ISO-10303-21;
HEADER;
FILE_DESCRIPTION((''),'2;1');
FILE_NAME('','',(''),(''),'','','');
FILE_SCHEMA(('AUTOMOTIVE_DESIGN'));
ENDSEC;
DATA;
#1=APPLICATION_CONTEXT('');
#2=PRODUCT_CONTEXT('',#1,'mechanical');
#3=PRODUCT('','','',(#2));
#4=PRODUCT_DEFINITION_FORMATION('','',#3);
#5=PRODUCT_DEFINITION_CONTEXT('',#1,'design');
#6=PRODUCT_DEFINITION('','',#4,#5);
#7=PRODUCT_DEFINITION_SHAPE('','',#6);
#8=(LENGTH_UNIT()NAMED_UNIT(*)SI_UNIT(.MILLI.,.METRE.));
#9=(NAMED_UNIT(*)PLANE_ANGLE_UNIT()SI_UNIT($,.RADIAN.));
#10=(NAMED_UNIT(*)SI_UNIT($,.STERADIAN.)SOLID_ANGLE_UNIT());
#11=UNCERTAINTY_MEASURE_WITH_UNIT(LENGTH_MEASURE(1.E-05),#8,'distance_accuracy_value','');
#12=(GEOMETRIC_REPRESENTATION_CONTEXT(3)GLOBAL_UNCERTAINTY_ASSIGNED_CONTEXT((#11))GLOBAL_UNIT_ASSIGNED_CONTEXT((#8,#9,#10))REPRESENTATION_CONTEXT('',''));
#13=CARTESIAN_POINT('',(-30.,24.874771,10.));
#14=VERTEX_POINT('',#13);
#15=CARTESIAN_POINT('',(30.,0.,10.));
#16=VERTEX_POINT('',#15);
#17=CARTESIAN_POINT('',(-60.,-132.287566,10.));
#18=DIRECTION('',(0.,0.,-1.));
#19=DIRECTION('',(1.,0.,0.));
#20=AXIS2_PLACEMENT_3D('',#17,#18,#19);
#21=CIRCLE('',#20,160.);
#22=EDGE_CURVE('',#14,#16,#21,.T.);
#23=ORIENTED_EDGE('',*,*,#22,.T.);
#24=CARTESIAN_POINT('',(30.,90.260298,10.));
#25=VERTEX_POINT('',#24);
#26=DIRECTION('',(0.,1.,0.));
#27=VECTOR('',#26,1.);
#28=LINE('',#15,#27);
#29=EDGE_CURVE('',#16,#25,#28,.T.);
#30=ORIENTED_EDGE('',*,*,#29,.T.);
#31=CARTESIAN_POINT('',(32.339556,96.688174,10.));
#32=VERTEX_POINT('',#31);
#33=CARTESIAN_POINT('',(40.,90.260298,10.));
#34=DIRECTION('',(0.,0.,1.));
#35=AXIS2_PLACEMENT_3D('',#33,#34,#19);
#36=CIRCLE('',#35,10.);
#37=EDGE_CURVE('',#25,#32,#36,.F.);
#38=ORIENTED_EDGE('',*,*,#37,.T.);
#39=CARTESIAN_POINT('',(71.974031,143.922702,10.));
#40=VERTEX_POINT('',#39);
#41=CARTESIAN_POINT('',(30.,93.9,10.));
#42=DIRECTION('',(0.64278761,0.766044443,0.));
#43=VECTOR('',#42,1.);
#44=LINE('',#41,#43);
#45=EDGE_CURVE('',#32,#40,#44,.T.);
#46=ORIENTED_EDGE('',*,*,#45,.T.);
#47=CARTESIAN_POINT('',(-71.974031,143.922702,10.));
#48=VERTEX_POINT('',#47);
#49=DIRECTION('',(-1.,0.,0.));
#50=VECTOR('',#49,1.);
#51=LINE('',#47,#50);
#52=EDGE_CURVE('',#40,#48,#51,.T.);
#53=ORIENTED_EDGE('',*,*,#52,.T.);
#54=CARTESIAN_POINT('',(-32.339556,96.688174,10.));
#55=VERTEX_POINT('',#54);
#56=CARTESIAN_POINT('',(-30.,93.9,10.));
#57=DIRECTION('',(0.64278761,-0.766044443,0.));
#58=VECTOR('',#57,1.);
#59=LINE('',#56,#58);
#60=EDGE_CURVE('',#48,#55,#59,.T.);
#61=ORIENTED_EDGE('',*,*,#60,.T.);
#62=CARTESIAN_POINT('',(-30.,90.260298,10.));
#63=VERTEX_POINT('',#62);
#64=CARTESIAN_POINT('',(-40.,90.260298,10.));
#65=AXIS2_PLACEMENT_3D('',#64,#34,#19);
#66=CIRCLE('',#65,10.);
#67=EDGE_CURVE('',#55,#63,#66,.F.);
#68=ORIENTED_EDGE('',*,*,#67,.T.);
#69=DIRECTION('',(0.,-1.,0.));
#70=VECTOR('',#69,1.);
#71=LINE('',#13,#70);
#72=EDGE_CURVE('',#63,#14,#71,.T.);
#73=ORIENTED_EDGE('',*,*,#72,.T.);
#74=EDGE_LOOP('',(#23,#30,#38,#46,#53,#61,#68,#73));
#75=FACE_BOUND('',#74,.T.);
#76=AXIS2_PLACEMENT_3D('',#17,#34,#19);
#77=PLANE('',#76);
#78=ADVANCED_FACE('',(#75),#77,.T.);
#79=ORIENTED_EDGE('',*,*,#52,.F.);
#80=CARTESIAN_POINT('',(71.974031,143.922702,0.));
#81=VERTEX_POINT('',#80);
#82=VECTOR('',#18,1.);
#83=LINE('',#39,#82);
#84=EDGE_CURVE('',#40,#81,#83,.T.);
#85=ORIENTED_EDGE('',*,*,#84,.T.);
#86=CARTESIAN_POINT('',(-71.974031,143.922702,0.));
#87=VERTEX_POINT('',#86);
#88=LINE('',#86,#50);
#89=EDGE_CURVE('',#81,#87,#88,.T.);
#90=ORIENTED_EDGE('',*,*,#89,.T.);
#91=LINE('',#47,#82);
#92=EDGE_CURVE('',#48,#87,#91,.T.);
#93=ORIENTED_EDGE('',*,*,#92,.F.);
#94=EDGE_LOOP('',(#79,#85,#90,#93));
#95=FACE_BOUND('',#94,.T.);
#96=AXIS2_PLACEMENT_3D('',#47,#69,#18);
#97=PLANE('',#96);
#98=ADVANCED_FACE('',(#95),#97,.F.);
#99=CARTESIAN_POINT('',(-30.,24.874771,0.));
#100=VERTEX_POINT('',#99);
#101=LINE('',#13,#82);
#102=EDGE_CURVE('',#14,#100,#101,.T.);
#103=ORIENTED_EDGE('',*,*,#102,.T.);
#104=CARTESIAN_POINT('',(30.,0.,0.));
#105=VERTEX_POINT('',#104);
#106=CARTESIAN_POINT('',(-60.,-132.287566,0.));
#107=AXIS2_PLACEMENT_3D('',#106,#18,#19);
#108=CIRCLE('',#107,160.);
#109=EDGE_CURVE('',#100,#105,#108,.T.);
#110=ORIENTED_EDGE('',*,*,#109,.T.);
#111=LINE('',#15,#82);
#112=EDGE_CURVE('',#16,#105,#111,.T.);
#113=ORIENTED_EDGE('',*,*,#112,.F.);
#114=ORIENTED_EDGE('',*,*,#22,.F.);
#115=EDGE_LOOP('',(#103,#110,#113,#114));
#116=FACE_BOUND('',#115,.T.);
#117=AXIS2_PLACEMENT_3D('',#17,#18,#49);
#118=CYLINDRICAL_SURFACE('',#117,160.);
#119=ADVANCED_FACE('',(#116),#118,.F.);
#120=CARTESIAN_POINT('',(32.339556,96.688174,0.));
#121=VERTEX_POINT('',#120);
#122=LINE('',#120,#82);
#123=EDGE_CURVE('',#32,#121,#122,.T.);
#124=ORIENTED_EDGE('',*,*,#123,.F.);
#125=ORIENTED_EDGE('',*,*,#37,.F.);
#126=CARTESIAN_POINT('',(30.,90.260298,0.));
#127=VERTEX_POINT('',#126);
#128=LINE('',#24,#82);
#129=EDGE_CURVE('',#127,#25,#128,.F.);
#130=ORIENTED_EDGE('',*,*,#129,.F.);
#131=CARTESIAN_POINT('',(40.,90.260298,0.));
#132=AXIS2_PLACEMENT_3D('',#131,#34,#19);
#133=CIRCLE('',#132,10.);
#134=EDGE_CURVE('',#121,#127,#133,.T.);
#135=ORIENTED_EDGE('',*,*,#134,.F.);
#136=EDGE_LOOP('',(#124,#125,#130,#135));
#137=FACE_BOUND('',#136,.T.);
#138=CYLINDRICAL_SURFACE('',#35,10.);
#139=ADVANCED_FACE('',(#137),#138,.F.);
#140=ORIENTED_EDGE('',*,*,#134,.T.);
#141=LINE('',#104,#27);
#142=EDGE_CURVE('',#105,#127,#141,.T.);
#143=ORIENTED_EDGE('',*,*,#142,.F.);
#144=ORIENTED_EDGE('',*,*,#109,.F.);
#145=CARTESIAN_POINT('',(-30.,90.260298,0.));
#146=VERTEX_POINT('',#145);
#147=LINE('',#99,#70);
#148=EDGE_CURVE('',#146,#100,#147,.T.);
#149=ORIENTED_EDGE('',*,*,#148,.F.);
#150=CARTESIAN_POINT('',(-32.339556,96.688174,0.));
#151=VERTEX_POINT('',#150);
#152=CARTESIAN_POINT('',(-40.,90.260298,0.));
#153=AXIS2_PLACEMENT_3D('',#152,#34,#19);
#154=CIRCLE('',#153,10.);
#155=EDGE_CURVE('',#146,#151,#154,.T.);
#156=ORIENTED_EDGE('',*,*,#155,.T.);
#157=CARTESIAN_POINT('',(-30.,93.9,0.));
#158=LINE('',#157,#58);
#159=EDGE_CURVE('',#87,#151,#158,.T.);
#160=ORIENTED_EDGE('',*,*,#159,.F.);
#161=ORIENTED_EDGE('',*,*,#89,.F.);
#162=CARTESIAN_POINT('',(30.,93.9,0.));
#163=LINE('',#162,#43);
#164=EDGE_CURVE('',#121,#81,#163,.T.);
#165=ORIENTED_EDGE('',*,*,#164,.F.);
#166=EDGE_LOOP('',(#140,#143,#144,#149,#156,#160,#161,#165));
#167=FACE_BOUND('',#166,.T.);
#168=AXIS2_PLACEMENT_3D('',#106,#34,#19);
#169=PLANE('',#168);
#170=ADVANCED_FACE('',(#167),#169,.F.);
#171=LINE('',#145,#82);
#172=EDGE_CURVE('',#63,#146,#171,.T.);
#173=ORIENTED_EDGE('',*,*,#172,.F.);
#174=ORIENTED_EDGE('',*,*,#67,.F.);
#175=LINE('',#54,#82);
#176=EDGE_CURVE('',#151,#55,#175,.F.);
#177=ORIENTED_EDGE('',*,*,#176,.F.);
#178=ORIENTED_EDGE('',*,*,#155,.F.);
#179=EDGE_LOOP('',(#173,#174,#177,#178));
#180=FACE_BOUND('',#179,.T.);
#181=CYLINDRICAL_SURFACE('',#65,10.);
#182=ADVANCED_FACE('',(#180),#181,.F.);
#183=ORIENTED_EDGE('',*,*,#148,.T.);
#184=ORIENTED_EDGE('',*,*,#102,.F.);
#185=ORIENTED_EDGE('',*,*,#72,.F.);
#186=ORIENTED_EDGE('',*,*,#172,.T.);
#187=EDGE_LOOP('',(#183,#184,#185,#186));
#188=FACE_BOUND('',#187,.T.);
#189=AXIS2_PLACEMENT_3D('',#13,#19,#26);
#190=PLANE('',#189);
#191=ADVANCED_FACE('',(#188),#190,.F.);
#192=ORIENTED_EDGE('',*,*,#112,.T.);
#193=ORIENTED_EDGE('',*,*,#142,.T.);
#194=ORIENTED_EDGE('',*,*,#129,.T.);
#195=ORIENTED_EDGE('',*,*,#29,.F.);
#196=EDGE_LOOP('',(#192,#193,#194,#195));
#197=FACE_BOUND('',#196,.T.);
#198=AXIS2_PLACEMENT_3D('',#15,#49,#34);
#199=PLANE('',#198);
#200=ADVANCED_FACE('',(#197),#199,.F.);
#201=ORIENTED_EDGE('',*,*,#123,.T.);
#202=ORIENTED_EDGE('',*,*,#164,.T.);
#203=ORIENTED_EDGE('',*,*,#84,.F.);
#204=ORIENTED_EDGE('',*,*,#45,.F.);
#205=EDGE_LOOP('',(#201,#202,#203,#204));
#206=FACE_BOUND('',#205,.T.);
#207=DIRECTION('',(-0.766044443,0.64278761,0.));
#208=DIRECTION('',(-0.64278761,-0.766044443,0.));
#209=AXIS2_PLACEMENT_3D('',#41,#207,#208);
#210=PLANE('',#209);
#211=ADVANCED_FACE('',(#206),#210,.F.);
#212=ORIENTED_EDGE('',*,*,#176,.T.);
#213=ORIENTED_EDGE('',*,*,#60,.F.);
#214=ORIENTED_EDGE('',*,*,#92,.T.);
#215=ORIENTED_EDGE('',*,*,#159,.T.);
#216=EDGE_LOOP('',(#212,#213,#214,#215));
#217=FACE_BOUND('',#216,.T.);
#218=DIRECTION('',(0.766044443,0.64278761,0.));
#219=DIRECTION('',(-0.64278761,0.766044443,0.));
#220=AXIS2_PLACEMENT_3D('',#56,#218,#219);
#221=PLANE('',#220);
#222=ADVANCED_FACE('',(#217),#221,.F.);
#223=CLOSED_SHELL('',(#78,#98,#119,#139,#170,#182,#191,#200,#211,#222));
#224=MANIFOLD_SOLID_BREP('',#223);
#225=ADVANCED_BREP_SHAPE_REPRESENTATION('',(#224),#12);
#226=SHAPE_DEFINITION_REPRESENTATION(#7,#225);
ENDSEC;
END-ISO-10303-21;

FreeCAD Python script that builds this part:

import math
import FreeCAD as App
import Part
import Sketcher
Q = App.Units.Quantity


def edges_at(feature, points):
    """Names of the edges that pass closest to the given points."""
    edges = feature.Shape.Edges
    near = lambda p: min(range(len(edges)), key=lambda i: edges[i].distToShape(Part.Vertex(*p))[0])
    return sorted({f"Edge{near(p) + 1}" for p in points})

doc = App.newDocument("Part")
body = doc.addObject("PartDesign::Body", "Body")

sketch1 = doc.addObject("Sketcher::SketchObject", "Sketch")
body.addObject(sketch1)
sketch1.AttachmentSupport = (doc.XY_Plane, [""])
sketch1.MapMode = "FlatFace"
sketch1.addGeometry(Part.LineSegment(App.Vector(30, 0, 0), App.Vector(30, 94, 0)), False)
sketch1.addGeometry(Part.LineSegment(App.Vector(30, 94, 0), App.Vector(72, 144, 0)), False)
sketch1.addGeometry(Part.LineSegment(App.Vector(72, 144, 0), App.Vector(-72, 144, 0)), False)
sketch1.addGeometry(Part.LineSegment(App.Vector(-72, 144, 0), App.Vector(-30, 94, 0)), False)
sketch1.addGeometry(Part.LineSegment(App.Vector(-30, 94, 0), App.Vector(-30, 25, 0)), False)
sketch1.addGeometry(Part.ArcOfCircle(Part.Circle(App.Vector(-60, -132, 0), App.Vector(0, 0, 1), 160), math.radians(56), math.radians(79)), False)
sketch1.addConstraint(Sketcher.Constraint("Coincident", 0, 2, 1, 1))
sketch1.addConstraint(Sketcher.Constraint("Coincident", 1, 2, 2, 1))
sketch1.addConstraint(Sketcher.Constraint("Coincident", 2, 2, 3, 1))
sketch1.addConstraint(Sketcher.Constraint("Coincident", 3, 2, 4, 1))
sketch1.addConstraint(Sketcher.Constraint("Coincident", 4, 2, 5, 2))
sketch1.addConstraint(Sketcher.Constraint("Coincident", 5, 1, 0, 1))
sketch1.addConstraint(Sketcher.Constraint("Vertical", 0))
sketch1.addConstraint(Sketcher.Constraint("Horizontal", 2))
sketch1.addConstraint(Sketcher.Constraint("Vertical", 4))
sketch1.addConstraint(Sketcher.Constraint("Symmetric", 0, 2, 3, 2, -2))
sketch1.addConstraint(Sketcher.Constraint("PointOnObject", 5, 1, -1))
sketch1.addConstraint(Sketcher.Constraint("Equal", 1, 3))
sketch1.addConstraint(Sketcher.Constraint("Radius", 5, 160.0))
sketch1.addConstraint(Sketcher.Constraint("Angle", 1, Q("50 deg")))
sketch1.addConstraint(Sketcher.Constraint("DistanceY", 0, 1, 0, 2, 93.9))
sketch1.addConstraint(Sketcher.Constraint("DistanceX", 5, 3, -1, 1, 60.0))
sketch1.addConstraint(Sketcher.Constraint("DistanceX", -1, 1, 0, 2, 30.0))
sketch1.addConstraint(Sketcher.Constraint("Distance", 1, 65.3))
pad1 = doc.addObject("PartDesign::Pad", "Pad")
body.addObject(pad1)
pad1.Profile = sketch1
pad1.Length = 10
doc.recompute()

fillet = doc.addObject("PartDesign::Fillet", "Fillet")
body.addObject(fillet)
fillet.Base = (pad1, edges_at(pad1, [(-30, 93.9, 5), (30, 93.9, 5)]))
fillet.Radius = 10

doc.recompute()
